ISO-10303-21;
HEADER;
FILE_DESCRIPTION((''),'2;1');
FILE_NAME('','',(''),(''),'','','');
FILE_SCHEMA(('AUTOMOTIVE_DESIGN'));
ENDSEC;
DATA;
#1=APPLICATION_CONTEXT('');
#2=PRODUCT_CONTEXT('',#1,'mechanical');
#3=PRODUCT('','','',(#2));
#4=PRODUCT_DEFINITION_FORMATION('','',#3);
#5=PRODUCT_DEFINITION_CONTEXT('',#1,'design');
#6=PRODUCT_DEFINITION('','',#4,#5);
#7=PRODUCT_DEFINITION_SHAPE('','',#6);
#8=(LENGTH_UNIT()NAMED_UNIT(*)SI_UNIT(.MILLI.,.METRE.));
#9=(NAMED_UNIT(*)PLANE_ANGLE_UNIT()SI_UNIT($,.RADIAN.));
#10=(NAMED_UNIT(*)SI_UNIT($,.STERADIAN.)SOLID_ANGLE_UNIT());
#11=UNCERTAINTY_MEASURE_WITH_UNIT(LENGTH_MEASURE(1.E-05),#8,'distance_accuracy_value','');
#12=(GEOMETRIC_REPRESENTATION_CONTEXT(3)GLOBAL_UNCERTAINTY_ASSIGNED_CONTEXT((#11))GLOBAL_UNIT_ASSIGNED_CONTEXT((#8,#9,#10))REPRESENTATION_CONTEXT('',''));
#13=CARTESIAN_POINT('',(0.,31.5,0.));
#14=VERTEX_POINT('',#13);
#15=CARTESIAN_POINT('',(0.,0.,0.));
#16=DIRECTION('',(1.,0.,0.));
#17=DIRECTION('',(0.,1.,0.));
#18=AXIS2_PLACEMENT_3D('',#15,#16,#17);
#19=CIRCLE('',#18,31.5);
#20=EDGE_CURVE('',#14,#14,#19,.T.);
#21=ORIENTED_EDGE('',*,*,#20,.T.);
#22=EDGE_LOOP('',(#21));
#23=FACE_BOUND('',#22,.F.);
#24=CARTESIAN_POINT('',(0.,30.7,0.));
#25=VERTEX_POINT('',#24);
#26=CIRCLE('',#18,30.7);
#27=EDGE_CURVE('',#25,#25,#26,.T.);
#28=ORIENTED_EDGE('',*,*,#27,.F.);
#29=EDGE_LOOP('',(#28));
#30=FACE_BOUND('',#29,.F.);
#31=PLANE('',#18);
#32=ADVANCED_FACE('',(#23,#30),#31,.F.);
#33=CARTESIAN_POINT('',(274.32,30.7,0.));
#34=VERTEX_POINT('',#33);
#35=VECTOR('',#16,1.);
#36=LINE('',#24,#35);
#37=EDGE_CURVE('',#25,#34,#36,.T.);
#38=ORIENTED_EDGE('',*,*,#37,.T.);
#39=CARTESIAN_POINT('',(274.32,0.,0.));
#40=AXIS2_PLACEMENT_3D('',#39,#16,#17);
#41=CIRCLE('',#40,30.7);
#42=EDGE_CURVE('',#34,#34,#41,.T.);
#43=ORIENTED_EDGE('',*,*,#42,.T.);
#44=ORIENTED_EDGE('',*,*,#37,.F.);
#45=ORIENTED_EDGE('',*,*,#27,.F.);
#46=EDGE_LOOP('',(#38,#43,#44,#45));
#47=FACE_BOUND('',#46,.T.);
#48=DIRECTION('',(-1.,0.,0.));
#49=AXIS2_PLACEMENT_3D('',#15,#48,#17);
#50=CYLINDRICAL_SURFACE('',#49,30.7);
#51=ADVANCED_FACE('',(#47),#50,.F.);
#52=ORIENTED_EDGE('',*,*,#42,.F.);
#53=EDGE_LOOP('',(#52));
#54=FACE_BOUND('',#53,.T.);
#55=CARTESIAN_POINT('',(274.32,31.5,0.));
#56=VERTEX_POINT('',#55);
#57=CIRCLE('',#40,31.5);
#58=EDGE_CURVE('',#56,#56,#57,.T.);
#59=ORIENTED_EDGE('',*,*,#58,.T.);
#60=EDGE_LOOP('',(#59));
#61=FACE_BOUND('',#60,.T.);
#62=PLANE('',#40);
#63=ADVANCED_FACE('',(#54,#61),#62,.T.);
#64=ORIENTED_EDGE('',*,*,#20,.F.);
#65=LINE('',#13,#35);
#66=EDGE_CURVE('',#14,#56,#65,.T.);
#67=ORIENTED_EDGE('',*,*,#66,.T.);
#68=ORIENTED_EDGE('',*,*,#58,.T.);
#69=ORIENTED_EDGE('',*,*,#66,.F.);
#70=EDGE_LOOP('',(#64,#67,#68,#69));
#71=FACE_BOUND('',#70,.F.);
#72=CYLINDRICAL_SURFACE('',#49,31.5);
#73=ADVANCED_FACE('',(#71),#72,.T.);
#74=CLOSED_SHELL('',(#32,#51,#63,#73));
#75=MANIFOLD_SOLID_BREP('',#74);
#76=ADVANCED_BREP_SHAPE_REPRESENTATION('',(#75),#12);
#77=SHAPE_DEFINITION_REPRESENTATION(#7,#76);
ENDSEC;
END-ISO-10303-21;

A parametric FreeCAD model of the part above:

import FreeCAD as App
import Part
import Sketcher

V = App.Vector

doc = App.newDocument("Part")
body = doc.addObject("PartDesign::Body", "Body")

# Sketch on YZ plane
sketch1 = body.newObject("Sketcher::SketchObject", "Sketch")
sketch1.AttachmentSupport = (doc.getObject("YZ_Plane"), [""])
sketch1.MapMode = "FlatFace"
sketch1.addGeometry(Part.Circle(V(0, 0, 0), V(0, 0, 1), 32), False)
sketch1.addGeometry(Part.Circle(V(0, 0, 0), V(0, 0, 1), 31), False)
sketch1.addConstraint(Sketcher.Constraint("Coincident", 0, 3, -1, 1))
sketch1.addConstraint(Sketcher.Constraint("Coincident", 1, 3, -1, 1))
sketch1.addConstraint(Sketcher.Constraint("Diameter", 0, 63.0))
sketch1.addConstraint(Sketcher.Constraint("Diameter", 1, 61.4))
pad1 = body.newObject("PartDesign::Pad", "Pad")
pad1.Profile = sketch1
pad1.Length = 274.32

doc.recompute()
